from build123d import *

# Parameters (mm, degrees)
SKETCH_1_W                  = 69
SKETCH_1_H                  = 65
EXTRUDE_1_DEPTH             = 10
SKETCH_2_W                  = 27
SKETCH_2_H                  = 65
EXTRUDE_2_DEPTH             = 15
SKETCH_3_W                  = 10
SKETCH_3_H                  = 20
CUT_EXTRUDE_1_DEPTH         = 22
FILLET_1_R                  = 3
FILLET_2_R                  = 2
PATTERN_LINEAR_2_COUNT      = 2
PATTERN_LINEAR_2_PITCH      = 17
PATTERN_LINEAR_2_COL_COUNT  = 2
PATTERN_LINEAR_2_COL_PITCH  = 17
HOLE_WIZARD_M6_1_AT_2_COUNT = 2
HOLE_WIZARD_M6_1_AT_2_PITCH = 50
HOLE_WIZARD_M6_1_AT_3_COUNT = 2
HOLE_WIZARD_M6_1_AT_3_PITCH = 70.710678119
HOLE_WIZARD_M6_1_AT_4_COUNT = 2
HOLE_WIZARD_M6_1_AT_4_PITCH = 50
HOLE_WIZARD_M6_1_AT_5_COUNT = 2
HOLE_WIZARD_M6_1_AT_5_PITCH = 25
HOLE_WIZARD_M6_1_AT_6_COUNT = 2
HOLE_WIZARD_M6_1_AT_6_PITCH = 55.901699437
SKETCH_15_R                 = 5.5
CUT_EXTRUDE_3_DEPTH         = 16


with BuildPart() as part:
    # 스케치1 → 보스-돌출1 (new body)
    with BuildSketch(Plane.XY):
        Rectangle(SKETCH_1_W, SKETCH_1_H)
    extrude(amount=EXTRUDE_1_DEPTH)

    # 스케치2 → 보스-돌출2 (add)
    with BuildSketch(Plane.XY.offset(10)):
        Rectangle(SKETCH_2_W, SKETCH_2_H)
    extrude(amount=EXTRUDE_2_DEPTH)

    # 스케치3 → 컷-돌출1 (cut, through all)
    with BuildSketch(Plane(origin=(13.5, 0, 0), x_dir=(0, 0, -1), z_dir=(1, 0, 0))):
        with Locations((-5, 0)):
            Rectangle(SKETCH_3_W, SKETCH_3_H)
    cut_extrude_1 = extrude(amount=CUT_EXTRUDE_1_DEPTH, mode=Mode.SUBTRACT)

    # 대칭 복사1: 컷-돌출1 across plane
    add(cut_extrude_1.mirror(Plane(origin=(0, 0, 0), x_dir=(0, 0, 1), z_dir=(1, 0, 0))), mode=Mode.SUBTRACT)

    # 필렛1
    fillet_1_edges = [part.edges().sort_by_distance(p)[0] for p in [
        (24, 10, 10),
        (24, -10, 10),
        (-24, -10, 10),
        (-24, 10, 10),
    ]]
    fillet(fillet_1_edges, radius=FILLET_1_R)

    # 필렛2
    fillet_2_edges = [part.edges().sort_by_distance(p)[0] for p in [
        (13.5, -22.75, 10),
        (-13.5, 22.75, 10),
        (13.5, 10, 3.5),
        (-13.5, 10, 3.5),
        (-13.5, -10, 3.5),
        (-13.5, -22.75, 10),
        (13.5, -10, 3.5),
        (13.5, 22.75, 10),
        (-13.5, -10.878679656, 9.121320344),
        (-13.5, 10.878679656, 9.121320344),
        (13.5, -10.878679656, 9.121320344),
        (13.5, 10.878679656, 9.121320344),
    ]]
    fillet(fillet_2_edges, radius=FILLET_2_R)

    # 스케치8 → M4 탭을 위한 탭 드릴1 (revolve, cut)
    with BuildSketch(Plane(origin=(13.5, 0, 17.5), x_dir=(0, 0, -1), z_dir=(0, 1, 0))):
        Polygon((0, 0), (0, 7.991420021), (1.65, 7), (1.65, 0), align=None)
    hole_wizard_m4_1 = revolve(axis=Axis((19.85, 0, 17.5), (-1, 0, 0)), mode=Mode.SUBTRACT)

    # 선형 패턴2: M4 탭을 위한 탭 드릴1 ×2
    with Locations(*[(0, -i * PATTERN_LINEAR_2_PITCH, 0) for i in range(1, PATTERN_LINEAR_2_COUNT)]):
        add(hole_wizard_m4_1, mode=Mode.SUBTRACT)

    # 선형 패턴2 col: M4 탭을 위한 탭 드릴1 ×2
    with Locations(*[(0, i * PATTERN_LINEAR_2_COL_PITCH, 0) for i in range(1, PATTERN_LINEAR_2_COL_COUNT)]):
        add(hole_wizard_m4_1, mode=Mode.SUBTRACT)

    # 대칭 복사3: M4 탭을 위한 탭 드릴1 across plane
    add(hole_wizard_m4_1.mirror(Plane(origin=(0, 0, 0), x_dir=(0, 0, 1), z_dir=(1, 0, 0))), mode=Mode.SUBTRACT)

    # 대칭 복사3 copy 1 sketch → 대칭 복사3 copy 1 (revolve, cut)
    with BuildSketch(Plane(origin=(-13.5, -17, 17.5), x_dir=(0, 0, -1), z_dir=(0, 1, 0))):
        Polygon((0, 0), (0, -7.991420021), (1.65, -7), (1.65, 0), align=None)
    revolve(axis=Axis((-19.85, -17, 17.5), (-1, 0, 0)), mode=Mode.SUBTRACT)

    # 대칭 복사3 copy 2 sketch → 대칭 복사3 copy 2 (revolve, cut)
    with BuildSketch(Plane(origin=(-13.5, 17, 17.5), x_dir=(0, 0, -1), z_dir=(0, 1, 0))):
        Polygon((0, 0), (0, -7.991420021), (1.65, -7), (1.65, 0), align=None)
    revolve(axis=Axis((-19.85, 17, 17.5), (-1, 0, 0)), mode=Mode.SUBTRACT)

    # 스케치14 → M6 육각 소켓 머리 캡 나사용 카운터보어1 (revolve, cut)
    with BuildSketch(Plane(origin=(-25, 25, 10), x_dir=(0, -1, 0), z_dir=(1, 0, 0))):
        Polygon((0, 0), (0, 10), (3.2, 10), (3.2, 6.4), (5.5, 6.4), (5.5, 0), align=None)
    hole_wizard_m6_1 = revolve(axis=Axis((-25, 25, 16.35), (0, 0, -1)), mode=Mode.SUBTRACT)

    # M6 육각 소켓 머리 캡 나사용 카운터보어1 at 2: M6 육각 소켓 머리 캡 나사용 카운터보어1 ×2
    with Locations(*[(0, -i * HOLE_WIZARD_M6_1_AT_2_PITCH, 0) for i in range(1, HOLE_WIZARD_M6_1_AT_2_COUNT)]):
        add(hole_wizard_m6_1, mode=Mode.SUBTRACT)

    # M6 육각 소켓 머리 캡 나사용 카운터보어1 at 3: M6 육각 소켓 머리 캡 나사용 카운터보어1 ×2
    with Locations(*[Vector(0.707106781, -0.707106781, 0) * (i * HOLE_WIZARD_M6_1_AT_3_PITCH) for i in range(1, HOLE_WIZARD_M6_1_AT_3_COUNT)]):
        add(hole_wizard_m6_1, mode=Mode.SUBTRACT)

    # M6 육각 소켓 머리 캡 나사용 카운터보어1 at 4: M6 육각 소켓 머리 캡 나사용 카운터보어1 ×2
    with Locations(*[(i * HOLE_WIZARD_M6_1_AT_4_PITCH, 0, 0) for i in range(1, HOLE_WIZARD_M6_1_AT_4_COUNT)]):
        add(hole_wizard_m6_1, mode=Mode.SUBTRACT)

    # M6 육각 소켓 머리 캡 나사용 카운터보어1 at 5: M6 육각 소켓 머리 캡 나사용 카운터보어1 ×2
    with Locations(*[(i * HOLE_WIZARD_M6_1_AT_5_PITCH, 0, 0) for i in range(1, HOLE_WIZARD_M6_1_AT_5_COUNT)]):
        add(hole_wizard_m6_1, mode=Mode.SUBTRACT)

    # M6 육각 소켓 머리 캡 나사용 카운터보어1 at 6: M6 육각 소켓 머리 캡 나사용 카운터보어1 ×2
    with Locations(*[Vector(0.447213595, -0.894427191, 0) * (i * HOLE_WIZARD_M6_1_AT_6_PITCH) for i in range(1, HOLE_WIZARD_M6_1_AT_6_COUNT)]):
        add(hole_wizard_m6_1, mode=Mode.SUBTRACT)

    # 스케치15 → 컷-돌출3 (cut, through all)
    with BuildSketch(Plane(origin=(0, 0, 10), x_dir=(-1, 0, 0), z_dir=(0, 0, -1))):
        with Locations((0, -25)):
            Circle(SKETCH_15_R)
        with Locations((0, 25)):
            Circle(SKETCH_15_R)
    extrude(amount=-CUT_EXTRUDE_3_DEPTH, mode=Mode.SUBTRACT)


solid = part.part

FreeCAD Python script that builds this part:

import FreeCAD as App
import Part
import Sketcher

V = App.Vector
Q = App.Units.Quantity


def edges_at(feature, points):
    """Names of the edges that pass closest to the given points."""
    edges = feature.Shape.Edges
    near = lambda p: min(range(len(edges)), key=lambda i: edges[i].distToShape(Part.Vertex(*p))[0])
    return sorted({f"Edge{near(p) + 1}" for p in points})

doc = App.newDocument("Part")
body = doc.addObject("PartDesign::Body", "Body")

sketch1 = body.newObject("Sketcher::SketchObject", "Sketch")
sketch1.AttachmentSupport = (doc.getObject("XY_Plane"), [""])
sketch1.MapMode = "FlatFace"
sketch1.addGeometry(Part.LineSegment(V(-34, 32, 0), V(-34, -32, 0)), False)
sketch1.addGeometry(Part.LineSegment(V(-34, -32, 0), V(34, -32, 0)), False)
sketch1.addGeometry(Part.LineSegment(V(34, -32, 0), V(34, 32, 0)), False)
sketch1.addGeometry(Part.LineSegment(V(34, 32, 0), V(-34, 32, 0)), False)
sketch1.addConstraint(Sketcher.Constraint("Coincident", 0, 2, 1, 1))
sketch1.addConstraint(Sketcher.Constraint("Coincident", 1, 2, 2, 1))
sketch1.addConstraint(Sketcher.Constraint("Coincident", 2, 2, 3, 1))
sketch1.addConstraint(Sketcher.Constraint("Coincident", 3, 2, 0, 1))
sketch1.addConstraint(Sketcher.Constraint("Vertical", 0))
sketch1.addConstraint(Sketcher.Constraint("Horizontal", 1))
sketch1.addConstraint(Sketcher.Constraint("Vertical", 2))
sketch1.addConstraint(Sketcher.Constraint("Horizontal", 3))
sketch1.addConstraint(Sketcher.Constraint("Symmetric", 0, 2, 2, 2, -1, 1))
sketch1.addConstraint(Sketcher.Constraint("DistanceX", 1, 1, 1, 2, Q("69 mm")))
sketch1.addConstraint(Sketcher.Constraint("DistanceY", 0, 2, 0, 1, Q("65 mm")))
pad1 = body.newObject("PartDesign::Pad", "Pad")
pad1.Profile = sketch1
pad1.Length = 10

sketch2 = body.newObject("Sketcher::SketchObject", "Sketch001")
sketch2.AttachmentSupport = (doc.getObject("XY_Plane"), [""])
sketch2.MapMode = "FlatFace"
sketch2.AttachmentOffset = App.Placement(V(0, 0, 10), App.Rotation())
sketch2.addGeometry(Part.LineSegment(V(-14, 32, 0), V(-14, -32, 0)), False)
sketch2.addGeometry(Part.LineSegment(V(-14, -32, 0), V(14, -32, 0)), False)
sketch2.addGeometry(Part.LineSegment(V(14, -32, 0), V(14, 32, 0)), False)
sketch2.addGeometry(Part.LineSegment(V(14, 32, 0), V(-14, 32, 0)), False)
sketch2.addConstraint(Sketcher.Constraint("Coincident", 0, 2, 1, 1))
sketch2.addConstraint(Sketcher.Constraint("Coincident", 1, 2, 2, 1))
sketch2.addConstraint(Sketcher.Constraint("Coincident", 2, 2, 3, 1))
sketch2.addConstraint(Sketcher.Constraint("Coincident", 3, 2, 0, 1))
sketch2.addConstraint(Sketcher.Constraint("Vertical", 0))
sketch2.addConstraint(Sketcher.Constraint("Horizontal", 1))
sketch2.addConstraint(Sketcher.Constraint("Vertical", 2))
sketch2.addConstraint(Sketcher.Constraint("Horizontal", 3))
sketch2.addConstraint(Sketcher.Constraint("Symmetric", 0, 2, 2, 2, -1, 1))
sketch2.addConstraint(Sketcher.Constraint("DistanceX", 1, 1, 1, 2, Q("27 mm")))
sketch2.addConstraint(Sketcher.Constraint("DistanceY", 0, 2, 0, 1, Q("65 mm")))
pad2 = body.newObject("PartDesign::Pad", "Pad001")
pad2.Profile = sketch2
pad2.Length = 15

sketch3 = body.newObject("Sketcher::SketchObject", "Sketch002")
sketch3.AttachmentSupport = (doc.getObject("YZ_Plane"), [""])
sketch3.MapMode = "FlatFace"
sketch3.AttachmentOffset = App.Placement(V(0, 0, 13.5), App.Rotation())
sketch3.addGeometry(Part.LineSegment(V(10, 10, 0), V(-10, 10, 0)), False)
sketch3.addGeometry(Part.LineSegment(V(-10, 10, 0), V(-10, 0, 0)), False)
sketch3.addGeometry(Part.LineSegment(V(-10, 0, 0), V(10, 0, 0)), False)
sketch3.addGeometry(Part.LineSegment(V(10, 0, 0), V(10, 10, 0)), False)
sketch3.addConstraint(Sketcher.Constraint("Coincident", 0, 2, 1, 1))
sketch3.addConstraint(Sketcher.Constraint("Coincident", 1, 2, 2, 1))
sketch3.addConstraint(Sketcher.Constraint("Coincident", 2, 2, 3, 1))
sketch3.addConstraint(Sketcher.Constraint("Coincident", 3, 2, 0, 1))
sketch3.addConstraint(Sketcher.Constraint("Horizontal", 0))
sketch3.addConstraint(Sketcher.Constraint("Vertical", 1))
sketch3.addConstraint(Sketcher.Constraint("Horizontal", 2))
sketch3.addConstraint(Sketcher.Constraint("Vertical", 3))
sketch3.addConstraint(Sketcher.Constraint("Symmetric", 1, 2, 2, 2, -1, 1))
sketch3.addConstraint(Sketcher.Constraint("DistanceX", 0, 2, 0, 1, Q("20 mm")))
sketch3.addConstraint(Sketcher.Constraint("DistanceY", 1, 2, 1, 1, Q("10 mm")))
pocket1 = body.newObject("PartDesign::Pocket", "Pocket")
pocket1.Profile = sketch3
pocket1.Type = "ThroughAll"
pocket1.Reversed = True
doc.recompute()

mirrored = body.newObject("PartDesign::Mirrored", "Mirrored")
mirrored.Originals = [pocket1]
mirrored.MirrorPlane = (doc.getObject("YZ_Plane"), [""])
body.Tip = mirrored
doc.recompute()

fillet = body.newObject("PartDesign::Fillet", "Fillet")
fillet.Base = (mirrored, edges_at(mirrored, [
    (24, 10, 10),
    (24, -10, 10),
    (-24, -10, 10),
    (-24, 10, 10),
]))
fillet.Radius = 3
doc.recompute()

fillet2 = body.newObject("PartDesign::Fillet", "Fillet001")
fillet2.Base = (fillet, edges_at(fillet, [
    (13.5, -22.75, 10),
    (-13.5, 22.75, 10),
    (13.5, 10, 3.5),
    (-13.5, 10, 3.5),
    (-13.5, -10, 3.5),
    (-13.5, -22.75, 10),
    (13.5, -10, 3.5),
    (13.5, 22.75, 10),
    (-13.5, -10.879, 9.121),
    (-13.5, 10.879, 9.121),
    (13.5, -10.879, 9.121),
    (13.5, 10.879, 9.121),
]))
fillet2.Radius = 2

sketch4 = body.newObject("Sketcher::SketchObject", "Sketch003")
sketch4.AttachmentSupport = (doc.getObject("XZ_Plane"), [""])
sketch4.MapMode = "FlatFace"
sketch4.addGeometry(Part.LineSegment(V(5.5, 17.5, 0), V(13.5, 17.5, 0)), False)
sketch4.addGeometry(Part.LineSegment(V(13.5, 17.5, 0), V(13.5, 15.8, 0)), False)
sketch4.addGeometry(Part.LineSegment(V(13.5, 15.8, 0), V(6.5, 15.8, 0)), False)
sketch4.addGeometry(Part.LineSegment(V(6.5, 15.8, 0), V(5.5, 17.5, 0)), False)
sketch4.addGeometry(Part.LineSegment(V(13.5, 17.5, 0), V(5.5, 17.5, 0)), True)
sketch4.addConstraint(Sketcher.Constraint("Coincident", 0, 2, 1, 1))
sketch4.addConstraint(Sketcher.Constraint("Coincident", 1, 2, 2, 1))
sketch4.addConstraint(Sketcher.Constraint("Coincident", 2, 2, 3, 1))
sketch4.addConstraint(Sketcher.Constraint("Coincident", 3, 2, 0, 1))
sketch4.addConstraint(Sketcher.Constraint("Horizontal", 0))
sketch4.addConstraint(Sketcher.Constraint("Vertical", 1))
sketch4.addConstraint(Sketcher.Constraint("Horizontal", 2))
sketch4.addConstraint(Sketcher.Constraint("Horizontal", 4))
sketch4.addConstraint(Sketcher.Constraint("Coincident", 4, 1, 0, 2))
sketch4.addConstraint(Sketcher.Constraint("Equal", 0, 4))
sketch4.addConstraint(Sketcher.Constraint("DistanceX", 2, 2, 2, 1, Q("7 mm")))
sketch4.addConstraint(Sketcher.Constraint("Angle", 3, Q("121 deg")))
sketch4.addConstraint(Sketcher.Constraint("DistanceY", 1, 2, 1, 1, Q("1.65 mm")))
sketch4.addConstraint(Sketcher.Constraint("DistanceX", -1, 1, 0, 2, Q("13.5 mm")))
sketch4.addConstraint(Sketcher.Constraint("DistanceY", -1, 1, 0, 2, Q("17.5 mm")))
groove = body.newObject("PartDesign::Groove", "Groove")
groove.Profile = sketch4
groove.ReferenceAxis = (sketch4, ["Axis0"])
groove.Angle = 360
doc.recompute()

linearpattern = body.newObject("PartDesign::LinearPattern", "LinearPattern")
linearpattern.Originals = [groove]
linearpattern.Direction = (doc.getObject("Y_Axis"), [""])
linearpattern.Mode = "offset"
linearpattern.Offset = 17
linearpattern.Occurrences = 2
linearpattern.Reversed = True
body.Tip = linearpattern
doc.recompute()

linearpattern2 = body.newObject("PartDesign::LinearPattern", "LinearPattern001")
linearpattern2.Originals = [groove]
linearpattern2.Direction = (doc.getObject("Y_Axis"), [""])
linearpattern2.Mode = "offset"
linearpattern2.Offset = 17
linearpattern2.Occurrences = 2
body.Tip = linearpattern2
doc.recompute()

mirrored2 = body.newObject("PartDesign::Mirrored", "Mirrored001")
mirrored2.Originals = [groove]
mirrored2.MirrorPlane = (doc.getObject("YZ_Plane"), [""])
body.Tip = mirrored2

sketch5 = body.newObject("Sketcher::SketchObject", "Sketch004")
sketch5.AttachmentSupport = (doc.getObject("XZ_Plane"), [""])
sketch5.MapMode = "FlatFace"
sketch5.AttachmentOffset = App.Placement(V(0, 0, 17), App.Rotation())
sketch5.addGeometry(Part.LineSegment(V(-13.5, 17.5, 0), V(-5.5, 17.5, 0)), False)
sketch5.addGeometry(Part.LineSegment(V(-5.5, 17.5, 0), V(-6.5, 15.8, 0)), False)
sketch5.addGeometry(Part.LineSegment(V(-6.5, 15.8, 0), V(-13.5, 15.8, 0)), False)
sketch5.addGeometry(Part.LineSegment(V(-13.5, 15.8, 0), V(-13.5, 17.5, 0)), False)
sketch5.addGeometry(Part.LineSegment(V(-5.5, 17.5, 0), V(-13.5, 17.5, 0)), True)
sketch5.addConstraint(Sketcher.Constraint("Coincident", 0, 2, 1, 1))
sketch5.addConstraint(Sketcher.Constraint("Coincident", 1, 2, 2, 1))
sketch5.addConstraint(Sketcher.Constraint("Coincident", 2, 2, 3, 1))
sketch5.addConstraint(Sketcher.Constraint("Coincident", 3, 2, 0, 1))
sketch5.addConstraint(Sketcher.Constraint("Horizontal", 0))
sketch5.addConstraint(Sketcher.Constraint("Horizontal", 2))
sketch5.addConstraint(Sketcher.Constraint("Vertical", 3))
sketch5.addConstraint(Sketcher.Constraint("Horizontal", 4))
sketch5.addConstraint(Sketcher.Constraint("Coincident", 4, 1, 0, 2))
sketch5.addConstraint(Sketcher.Constraint("Vertical", 2, 2, 4, 2))
sketch5.addConstraint(Sketcher.Constraint("DistanceX", 2, 2, 2, 1, Q("7 mm")))
sketch5.addConstraint(Sketcher.Constraint("Angle", 1, Q("-121 deg")))
sketch5.addConstraint(Sketcher.Constraint("DistanceY", 3, 1, 3, 2, Q("1.65 mm")))
sketch5.addConstraint(Sketcher.Constraint("DistanceY", -1, 1, 0, 2, Q("17.5 mm")))
sketch5.addConstraint(Sketcher.Constraint("DistanceX", 1, 2, -1, 1, Q("6.5 mm")))
groove2 = body.newObject("PartDesign::Groove", "Groove001")
groove2.Profile = sketch5
groove2.ReferenceAxis = (sketch5, ["Axis0"])
groove2.Angle = 360

sketch6 = body.newObject("Sketcher::SketchObject", "Sketch005")
sketch6.AttachmentSupport = (doc.getObject("XZ_Plane"), [""])
sketch6.MapMode = "FlatFace"
sketch6.AttachmentOffset = App.Placement(V(0, 0, -17), App.Rotation())
sketch6.addGeometry(Part.LineSegment(V(-13.5, 17.5, 0), V(-5.5, 17.5, 0)), False)
sketch6.addGeometry(Part.LineSegment(V(-5.5, 17.5, 0), V(-6.5, 15.8, 0)), False)
sketch6.addGeometry(Part.LineSegment(V(-6.5, 15.8, 0), V(-13.5, 15.8, 0)), False)
sketch6.addGeometry(Part.LineSegment(V(-13.5, 15.8, 0), V(-13.5, 17.5, 0)), False)
sketch6.addGeometry(Part.LineSegment(V(-5.5, 17.5, 0), V(-13.5, 17.5, 0)), True)
sketch6.addConstraint(Sketcher.Constraint("Coincident", 0, 2, 1, 1))
sketch6.addConstraint(Sketcher.Constraint("Coincident", 1, 2, 2, 1))
sketch6.addConstraint(Sketcher.Constraint("Coincident", 2, 2, 3, 1))
sketch6.addConstraint(Sketcher.Constraint("Coincident", 3, 2, 0, 1))
sketch6.addConstraint(Sketcher.Constraint("Horizontal", 0))
sketch6.addConstraint(Sketcher.Constraint("Horizontal", 2))
sketch6.addConstraint(Sketcher.Constraint("Vertical", 3))
sketch6.addConstraint(Sketcher.Constraint("Horizontal", 4))
sketch6.addConstraint(Sketcher.Constraint("Coincident", 4, 1, 0, 2))
sketch6.addConstraint(Sketcher.Constraint("Vertical", 2, 2, 4, 2))
sketch6.addConstraint(Sketcher.Constraint("DistanceX", 2, 2, 2, 1, Q("7 mm")))
sketch6.addConstraint(Sketcher.Constraint("Angle", 1, Q("-121 deg")))
sketch6.addConstraint(Sketcher.Constraint("DistanceY", 3, 1, 3, 2, Q("1.65 mm")))
sketch6.addConstraint(Sketcher.Constraint("DistanceY", -1, 1, 0, 2, Q("17.5 mm")))
sketch6.addConstraint(Sketcher.Constraint("DistanceX", 1, 2, -1, 1, Q("6.5 mm")))
groove3 = body.newObject("PartDesign::Groove", "Groove002")
groove3.Profile = sketch6
groove3.ReferenceAxis = (sketch6, ["Axis0"])
groove3.Angle = 360

sketch7 = body.newObject("Sketcher::SketchObject", "Sketch006")
sketch7.AttachmentSupport = (doc.getObject("YZ_Plane"), [""])
sketch7.MapMode = "FlatFace"
sketch7.AttachmentOffset = App.Placement(V(0, 0, -25), App.Rotation())
sketch7.addGeometry(Part.LineSegment(V(25, 0, 0), V(25, 10, 0)), False)
sketch7.addGeometry(Part.LineSegment(V(25, 10, 0), V(19.5, 10, 0)), False)
sketch7.addGeometry(Part.LineSegment(V(19.5, 10, 0), V(19.5, 3.6, 0)), False)
sketch7.addGeometry(Part.LineSegment(V(19.5, 3.6, 0), V(21.8, 3.6, 0)), False)
sketch7.addGeometry(Part.LineSegment(V(21.8, 3.6, 0), V(21.8, 0, 0)), False)
sketch7.addGeometry(Part.LineSegment(V(21.8, 0, 0), V(25, 0, 0)), False)
sketch7.addGeometry(Part.LineSegment(V(25, 10, 0), V(25, 0, 0)), True)
sketch7.addConstraint(Sketcher.Constraint("Coincident", 0, 2, 1, 1))
sketch7.addConstraint(Sketcher.Constraint("Coincident", 1, 2, 2, 1))
sketch7.addConstraint(Sketcher.Constraint("Coincident", 2, 2, 3, 1))
sketch7.addConstraint(Sketcher.Constraint("Coincident", 3, 2, 4, 1))
sketch7.addConstraint(Sketcher.Constraint("Coincident", 4, 2, 5, 1))
sketch7.addConstraint(Sketcher.Constraint("Coincident", 5, 2, 0, 1))
sketch7.addConstraint(Sketcher.Constraint("Vertical", 0))
sketch7.addConstraint(Sketcher.Constraint("Horizontal", 1))
sketch7.addConstraint(Sketcher.Constraint("Vertical", 2))
sketch7.addConstraint(Sketcher.Constraint("Horizontal", 3))
sketch7.addConstraint(Sketcher.Constraint("Vertical", 4))
sketch7.addConstraint(Sketcher.Constraint("Horizontal", 5))
sketch7.addConstraint(Sketcher.Constraint("Vertical", 6))
sketch7.addConstraint(Sketcher.Constraint("Coincident", 6, 1, 0, 2))
sketch7.addConstraint(Sketcher.Constraint("PointOnObject", 4, 2, -1))
sketch7.addConstraint(Sketcher.Constraint("PointOnObject", 6, 2, -1))
sketch7.addConstraint(Sketcher.Constraint("DistanceY", 0, 1, 0, 2, Q("10 mm")))
sketch7.addConstraint(Sketcher.Constraint("DistanceX", 1, 2, 1, 1, Q("5.5 mm")))
sketch7.addConstraint(Sketcher.Constraint("DistanceX", 3, 1, 3, 2, Q("2.3 mm")))
sketch7.addConstraint(Sketcher.Constraint("DistanceY", 2, 2, 2, 1, Q("6.4 mm")))
sketch7.addConstraint(Sketcher.Constraint("DistanceX", -1, 1, 0, 2, Q("25 mm")))
groove4 = body.newObject("PartDesign::Groove", "Groove003")
groove4.Profile = sketch7
groove4.ReferenceAxis = (sketch7, ["Axis0"])
groove4.Angle = 360
doc.recompute()

linearpattern3 = body.newObject("PartDesign::LinearPattern", "LinearPattern002")
linearpattern3.Originals = [groove4]
linearpattern3.Direction = (doc.getObject("Y_Axis"), [""])
linearpattern3.Mode = "offset"
linearpattern3.Offset = 50
linearpattern3.Occurrences = 2
linearpattern3.Reversed = True
body.Tip = linearpattern3
doc.recompute()

datumline = body.newObject("PartDesign::Line", "DatumLine")
datumline.Placement = App.Placement(V(0, 0, 0), App.Rotation(V(0, 0, 1), V(0.707106781, -0.707106781, 0)))
linearpattern4 = body.newObject("PartDesign::LinearPattern", "LinearPattern003")
linearpattern4.Originals = [groove4]
linearpattern4.Direction = (datumline, [""])
linearpattern4.Mode = "offset"
linearpattern4.Offset = 70.710678
linearpattern4.Occurrences = 2
body.Tip = linearpattern4
doc.recompute()

linearpattern5 = body.newObject("PartDesign::LinearPattern", "LinearPattern004")
linearpattern5.Originals = [groove4]
linearpattern5.Direction = (doc.getObject("X_Axis"), [""])
linearpattern5.Mode = "offset"
linearpattern5.Offset = 50
linearpattern5.Occurrences = 2
body.Tip = linearpattern5
doc.recompute()

linearpattern6 = body.newObject("PartDesign::LinearPattern", "LinearPattern005")
linearpattern6.Originals = [groove4]
linearpattern6.Direction = (doc.getObject("X_Axis"), [""])
linearpattern6.Mode = "offset"
linearpattern6.Offset = 25
linearpattern6.Occurrences = 2
body.Tip = linearpattern6
doc.recompute()

datumline2 = body.newObject("PartDesign::Line", "DatumLine001")
datumline2.Placement = App.Placement(V(0, 0, 0), App.Rotation(V(0, 0, 1), V(0.447213595, -0.894427191, 0)))
linearpattern7 = body.newObject("PartDesign::LinearPattern", "LinearPattern006")
linearpattern7.Originals = [groove4]
linearpattern7.Direction = (datumline2, [""])
linearpattern7.Mode = "offset"
linearpattern7.Offset = 55.901699
linearpattern7.Occurrences = 2
body.Tip = linearpattern7

sketch8 = body.newObject("Sketcher::SketchObject", "Sketch007")
sketch8.AttachmentSupport = (doc.getObject("XY_Plane"), [""])
sketch8.MapMode = "FlatFace"
sketch8.AttachmentOffset = App.Placement(V(0, 0, 10), App.Rotation())
sketch8.addGeometry(Part.Circle(V(0, -25, 0), V(0, 0, 1), 6), False)
sketch8.addGeometry(Part.Circle(V(0, 25, 0), V(0, 0, 1), 6), False)
sketch8.addConstraint(Sketcher.Constraint("Equal", 0, 1))
sketch8.addConstraint(Sketcher.Constraint("Symmetric", 0, 3, 1, 3, -1, 1))
sketch8.addConstraint(Sketcher.Constraint("PointOnObject", 0, 3, -2))
sketch8.addConstraint(Sketcher.Constraint("Diameter", 0, Q("11 mm")))
sketch8.addConstraint(Sketcher.Constraint("DistanceY", 0, 3, -1, 1, Q("25 mm")))
pocket2 = body.newObject("PartDesign::Pocket", "Pocket001")
pocket2.Profile = sketch8
pocket2.Type = "ThroughAll"
pocket2.Reversed = True

doc.recompute()
